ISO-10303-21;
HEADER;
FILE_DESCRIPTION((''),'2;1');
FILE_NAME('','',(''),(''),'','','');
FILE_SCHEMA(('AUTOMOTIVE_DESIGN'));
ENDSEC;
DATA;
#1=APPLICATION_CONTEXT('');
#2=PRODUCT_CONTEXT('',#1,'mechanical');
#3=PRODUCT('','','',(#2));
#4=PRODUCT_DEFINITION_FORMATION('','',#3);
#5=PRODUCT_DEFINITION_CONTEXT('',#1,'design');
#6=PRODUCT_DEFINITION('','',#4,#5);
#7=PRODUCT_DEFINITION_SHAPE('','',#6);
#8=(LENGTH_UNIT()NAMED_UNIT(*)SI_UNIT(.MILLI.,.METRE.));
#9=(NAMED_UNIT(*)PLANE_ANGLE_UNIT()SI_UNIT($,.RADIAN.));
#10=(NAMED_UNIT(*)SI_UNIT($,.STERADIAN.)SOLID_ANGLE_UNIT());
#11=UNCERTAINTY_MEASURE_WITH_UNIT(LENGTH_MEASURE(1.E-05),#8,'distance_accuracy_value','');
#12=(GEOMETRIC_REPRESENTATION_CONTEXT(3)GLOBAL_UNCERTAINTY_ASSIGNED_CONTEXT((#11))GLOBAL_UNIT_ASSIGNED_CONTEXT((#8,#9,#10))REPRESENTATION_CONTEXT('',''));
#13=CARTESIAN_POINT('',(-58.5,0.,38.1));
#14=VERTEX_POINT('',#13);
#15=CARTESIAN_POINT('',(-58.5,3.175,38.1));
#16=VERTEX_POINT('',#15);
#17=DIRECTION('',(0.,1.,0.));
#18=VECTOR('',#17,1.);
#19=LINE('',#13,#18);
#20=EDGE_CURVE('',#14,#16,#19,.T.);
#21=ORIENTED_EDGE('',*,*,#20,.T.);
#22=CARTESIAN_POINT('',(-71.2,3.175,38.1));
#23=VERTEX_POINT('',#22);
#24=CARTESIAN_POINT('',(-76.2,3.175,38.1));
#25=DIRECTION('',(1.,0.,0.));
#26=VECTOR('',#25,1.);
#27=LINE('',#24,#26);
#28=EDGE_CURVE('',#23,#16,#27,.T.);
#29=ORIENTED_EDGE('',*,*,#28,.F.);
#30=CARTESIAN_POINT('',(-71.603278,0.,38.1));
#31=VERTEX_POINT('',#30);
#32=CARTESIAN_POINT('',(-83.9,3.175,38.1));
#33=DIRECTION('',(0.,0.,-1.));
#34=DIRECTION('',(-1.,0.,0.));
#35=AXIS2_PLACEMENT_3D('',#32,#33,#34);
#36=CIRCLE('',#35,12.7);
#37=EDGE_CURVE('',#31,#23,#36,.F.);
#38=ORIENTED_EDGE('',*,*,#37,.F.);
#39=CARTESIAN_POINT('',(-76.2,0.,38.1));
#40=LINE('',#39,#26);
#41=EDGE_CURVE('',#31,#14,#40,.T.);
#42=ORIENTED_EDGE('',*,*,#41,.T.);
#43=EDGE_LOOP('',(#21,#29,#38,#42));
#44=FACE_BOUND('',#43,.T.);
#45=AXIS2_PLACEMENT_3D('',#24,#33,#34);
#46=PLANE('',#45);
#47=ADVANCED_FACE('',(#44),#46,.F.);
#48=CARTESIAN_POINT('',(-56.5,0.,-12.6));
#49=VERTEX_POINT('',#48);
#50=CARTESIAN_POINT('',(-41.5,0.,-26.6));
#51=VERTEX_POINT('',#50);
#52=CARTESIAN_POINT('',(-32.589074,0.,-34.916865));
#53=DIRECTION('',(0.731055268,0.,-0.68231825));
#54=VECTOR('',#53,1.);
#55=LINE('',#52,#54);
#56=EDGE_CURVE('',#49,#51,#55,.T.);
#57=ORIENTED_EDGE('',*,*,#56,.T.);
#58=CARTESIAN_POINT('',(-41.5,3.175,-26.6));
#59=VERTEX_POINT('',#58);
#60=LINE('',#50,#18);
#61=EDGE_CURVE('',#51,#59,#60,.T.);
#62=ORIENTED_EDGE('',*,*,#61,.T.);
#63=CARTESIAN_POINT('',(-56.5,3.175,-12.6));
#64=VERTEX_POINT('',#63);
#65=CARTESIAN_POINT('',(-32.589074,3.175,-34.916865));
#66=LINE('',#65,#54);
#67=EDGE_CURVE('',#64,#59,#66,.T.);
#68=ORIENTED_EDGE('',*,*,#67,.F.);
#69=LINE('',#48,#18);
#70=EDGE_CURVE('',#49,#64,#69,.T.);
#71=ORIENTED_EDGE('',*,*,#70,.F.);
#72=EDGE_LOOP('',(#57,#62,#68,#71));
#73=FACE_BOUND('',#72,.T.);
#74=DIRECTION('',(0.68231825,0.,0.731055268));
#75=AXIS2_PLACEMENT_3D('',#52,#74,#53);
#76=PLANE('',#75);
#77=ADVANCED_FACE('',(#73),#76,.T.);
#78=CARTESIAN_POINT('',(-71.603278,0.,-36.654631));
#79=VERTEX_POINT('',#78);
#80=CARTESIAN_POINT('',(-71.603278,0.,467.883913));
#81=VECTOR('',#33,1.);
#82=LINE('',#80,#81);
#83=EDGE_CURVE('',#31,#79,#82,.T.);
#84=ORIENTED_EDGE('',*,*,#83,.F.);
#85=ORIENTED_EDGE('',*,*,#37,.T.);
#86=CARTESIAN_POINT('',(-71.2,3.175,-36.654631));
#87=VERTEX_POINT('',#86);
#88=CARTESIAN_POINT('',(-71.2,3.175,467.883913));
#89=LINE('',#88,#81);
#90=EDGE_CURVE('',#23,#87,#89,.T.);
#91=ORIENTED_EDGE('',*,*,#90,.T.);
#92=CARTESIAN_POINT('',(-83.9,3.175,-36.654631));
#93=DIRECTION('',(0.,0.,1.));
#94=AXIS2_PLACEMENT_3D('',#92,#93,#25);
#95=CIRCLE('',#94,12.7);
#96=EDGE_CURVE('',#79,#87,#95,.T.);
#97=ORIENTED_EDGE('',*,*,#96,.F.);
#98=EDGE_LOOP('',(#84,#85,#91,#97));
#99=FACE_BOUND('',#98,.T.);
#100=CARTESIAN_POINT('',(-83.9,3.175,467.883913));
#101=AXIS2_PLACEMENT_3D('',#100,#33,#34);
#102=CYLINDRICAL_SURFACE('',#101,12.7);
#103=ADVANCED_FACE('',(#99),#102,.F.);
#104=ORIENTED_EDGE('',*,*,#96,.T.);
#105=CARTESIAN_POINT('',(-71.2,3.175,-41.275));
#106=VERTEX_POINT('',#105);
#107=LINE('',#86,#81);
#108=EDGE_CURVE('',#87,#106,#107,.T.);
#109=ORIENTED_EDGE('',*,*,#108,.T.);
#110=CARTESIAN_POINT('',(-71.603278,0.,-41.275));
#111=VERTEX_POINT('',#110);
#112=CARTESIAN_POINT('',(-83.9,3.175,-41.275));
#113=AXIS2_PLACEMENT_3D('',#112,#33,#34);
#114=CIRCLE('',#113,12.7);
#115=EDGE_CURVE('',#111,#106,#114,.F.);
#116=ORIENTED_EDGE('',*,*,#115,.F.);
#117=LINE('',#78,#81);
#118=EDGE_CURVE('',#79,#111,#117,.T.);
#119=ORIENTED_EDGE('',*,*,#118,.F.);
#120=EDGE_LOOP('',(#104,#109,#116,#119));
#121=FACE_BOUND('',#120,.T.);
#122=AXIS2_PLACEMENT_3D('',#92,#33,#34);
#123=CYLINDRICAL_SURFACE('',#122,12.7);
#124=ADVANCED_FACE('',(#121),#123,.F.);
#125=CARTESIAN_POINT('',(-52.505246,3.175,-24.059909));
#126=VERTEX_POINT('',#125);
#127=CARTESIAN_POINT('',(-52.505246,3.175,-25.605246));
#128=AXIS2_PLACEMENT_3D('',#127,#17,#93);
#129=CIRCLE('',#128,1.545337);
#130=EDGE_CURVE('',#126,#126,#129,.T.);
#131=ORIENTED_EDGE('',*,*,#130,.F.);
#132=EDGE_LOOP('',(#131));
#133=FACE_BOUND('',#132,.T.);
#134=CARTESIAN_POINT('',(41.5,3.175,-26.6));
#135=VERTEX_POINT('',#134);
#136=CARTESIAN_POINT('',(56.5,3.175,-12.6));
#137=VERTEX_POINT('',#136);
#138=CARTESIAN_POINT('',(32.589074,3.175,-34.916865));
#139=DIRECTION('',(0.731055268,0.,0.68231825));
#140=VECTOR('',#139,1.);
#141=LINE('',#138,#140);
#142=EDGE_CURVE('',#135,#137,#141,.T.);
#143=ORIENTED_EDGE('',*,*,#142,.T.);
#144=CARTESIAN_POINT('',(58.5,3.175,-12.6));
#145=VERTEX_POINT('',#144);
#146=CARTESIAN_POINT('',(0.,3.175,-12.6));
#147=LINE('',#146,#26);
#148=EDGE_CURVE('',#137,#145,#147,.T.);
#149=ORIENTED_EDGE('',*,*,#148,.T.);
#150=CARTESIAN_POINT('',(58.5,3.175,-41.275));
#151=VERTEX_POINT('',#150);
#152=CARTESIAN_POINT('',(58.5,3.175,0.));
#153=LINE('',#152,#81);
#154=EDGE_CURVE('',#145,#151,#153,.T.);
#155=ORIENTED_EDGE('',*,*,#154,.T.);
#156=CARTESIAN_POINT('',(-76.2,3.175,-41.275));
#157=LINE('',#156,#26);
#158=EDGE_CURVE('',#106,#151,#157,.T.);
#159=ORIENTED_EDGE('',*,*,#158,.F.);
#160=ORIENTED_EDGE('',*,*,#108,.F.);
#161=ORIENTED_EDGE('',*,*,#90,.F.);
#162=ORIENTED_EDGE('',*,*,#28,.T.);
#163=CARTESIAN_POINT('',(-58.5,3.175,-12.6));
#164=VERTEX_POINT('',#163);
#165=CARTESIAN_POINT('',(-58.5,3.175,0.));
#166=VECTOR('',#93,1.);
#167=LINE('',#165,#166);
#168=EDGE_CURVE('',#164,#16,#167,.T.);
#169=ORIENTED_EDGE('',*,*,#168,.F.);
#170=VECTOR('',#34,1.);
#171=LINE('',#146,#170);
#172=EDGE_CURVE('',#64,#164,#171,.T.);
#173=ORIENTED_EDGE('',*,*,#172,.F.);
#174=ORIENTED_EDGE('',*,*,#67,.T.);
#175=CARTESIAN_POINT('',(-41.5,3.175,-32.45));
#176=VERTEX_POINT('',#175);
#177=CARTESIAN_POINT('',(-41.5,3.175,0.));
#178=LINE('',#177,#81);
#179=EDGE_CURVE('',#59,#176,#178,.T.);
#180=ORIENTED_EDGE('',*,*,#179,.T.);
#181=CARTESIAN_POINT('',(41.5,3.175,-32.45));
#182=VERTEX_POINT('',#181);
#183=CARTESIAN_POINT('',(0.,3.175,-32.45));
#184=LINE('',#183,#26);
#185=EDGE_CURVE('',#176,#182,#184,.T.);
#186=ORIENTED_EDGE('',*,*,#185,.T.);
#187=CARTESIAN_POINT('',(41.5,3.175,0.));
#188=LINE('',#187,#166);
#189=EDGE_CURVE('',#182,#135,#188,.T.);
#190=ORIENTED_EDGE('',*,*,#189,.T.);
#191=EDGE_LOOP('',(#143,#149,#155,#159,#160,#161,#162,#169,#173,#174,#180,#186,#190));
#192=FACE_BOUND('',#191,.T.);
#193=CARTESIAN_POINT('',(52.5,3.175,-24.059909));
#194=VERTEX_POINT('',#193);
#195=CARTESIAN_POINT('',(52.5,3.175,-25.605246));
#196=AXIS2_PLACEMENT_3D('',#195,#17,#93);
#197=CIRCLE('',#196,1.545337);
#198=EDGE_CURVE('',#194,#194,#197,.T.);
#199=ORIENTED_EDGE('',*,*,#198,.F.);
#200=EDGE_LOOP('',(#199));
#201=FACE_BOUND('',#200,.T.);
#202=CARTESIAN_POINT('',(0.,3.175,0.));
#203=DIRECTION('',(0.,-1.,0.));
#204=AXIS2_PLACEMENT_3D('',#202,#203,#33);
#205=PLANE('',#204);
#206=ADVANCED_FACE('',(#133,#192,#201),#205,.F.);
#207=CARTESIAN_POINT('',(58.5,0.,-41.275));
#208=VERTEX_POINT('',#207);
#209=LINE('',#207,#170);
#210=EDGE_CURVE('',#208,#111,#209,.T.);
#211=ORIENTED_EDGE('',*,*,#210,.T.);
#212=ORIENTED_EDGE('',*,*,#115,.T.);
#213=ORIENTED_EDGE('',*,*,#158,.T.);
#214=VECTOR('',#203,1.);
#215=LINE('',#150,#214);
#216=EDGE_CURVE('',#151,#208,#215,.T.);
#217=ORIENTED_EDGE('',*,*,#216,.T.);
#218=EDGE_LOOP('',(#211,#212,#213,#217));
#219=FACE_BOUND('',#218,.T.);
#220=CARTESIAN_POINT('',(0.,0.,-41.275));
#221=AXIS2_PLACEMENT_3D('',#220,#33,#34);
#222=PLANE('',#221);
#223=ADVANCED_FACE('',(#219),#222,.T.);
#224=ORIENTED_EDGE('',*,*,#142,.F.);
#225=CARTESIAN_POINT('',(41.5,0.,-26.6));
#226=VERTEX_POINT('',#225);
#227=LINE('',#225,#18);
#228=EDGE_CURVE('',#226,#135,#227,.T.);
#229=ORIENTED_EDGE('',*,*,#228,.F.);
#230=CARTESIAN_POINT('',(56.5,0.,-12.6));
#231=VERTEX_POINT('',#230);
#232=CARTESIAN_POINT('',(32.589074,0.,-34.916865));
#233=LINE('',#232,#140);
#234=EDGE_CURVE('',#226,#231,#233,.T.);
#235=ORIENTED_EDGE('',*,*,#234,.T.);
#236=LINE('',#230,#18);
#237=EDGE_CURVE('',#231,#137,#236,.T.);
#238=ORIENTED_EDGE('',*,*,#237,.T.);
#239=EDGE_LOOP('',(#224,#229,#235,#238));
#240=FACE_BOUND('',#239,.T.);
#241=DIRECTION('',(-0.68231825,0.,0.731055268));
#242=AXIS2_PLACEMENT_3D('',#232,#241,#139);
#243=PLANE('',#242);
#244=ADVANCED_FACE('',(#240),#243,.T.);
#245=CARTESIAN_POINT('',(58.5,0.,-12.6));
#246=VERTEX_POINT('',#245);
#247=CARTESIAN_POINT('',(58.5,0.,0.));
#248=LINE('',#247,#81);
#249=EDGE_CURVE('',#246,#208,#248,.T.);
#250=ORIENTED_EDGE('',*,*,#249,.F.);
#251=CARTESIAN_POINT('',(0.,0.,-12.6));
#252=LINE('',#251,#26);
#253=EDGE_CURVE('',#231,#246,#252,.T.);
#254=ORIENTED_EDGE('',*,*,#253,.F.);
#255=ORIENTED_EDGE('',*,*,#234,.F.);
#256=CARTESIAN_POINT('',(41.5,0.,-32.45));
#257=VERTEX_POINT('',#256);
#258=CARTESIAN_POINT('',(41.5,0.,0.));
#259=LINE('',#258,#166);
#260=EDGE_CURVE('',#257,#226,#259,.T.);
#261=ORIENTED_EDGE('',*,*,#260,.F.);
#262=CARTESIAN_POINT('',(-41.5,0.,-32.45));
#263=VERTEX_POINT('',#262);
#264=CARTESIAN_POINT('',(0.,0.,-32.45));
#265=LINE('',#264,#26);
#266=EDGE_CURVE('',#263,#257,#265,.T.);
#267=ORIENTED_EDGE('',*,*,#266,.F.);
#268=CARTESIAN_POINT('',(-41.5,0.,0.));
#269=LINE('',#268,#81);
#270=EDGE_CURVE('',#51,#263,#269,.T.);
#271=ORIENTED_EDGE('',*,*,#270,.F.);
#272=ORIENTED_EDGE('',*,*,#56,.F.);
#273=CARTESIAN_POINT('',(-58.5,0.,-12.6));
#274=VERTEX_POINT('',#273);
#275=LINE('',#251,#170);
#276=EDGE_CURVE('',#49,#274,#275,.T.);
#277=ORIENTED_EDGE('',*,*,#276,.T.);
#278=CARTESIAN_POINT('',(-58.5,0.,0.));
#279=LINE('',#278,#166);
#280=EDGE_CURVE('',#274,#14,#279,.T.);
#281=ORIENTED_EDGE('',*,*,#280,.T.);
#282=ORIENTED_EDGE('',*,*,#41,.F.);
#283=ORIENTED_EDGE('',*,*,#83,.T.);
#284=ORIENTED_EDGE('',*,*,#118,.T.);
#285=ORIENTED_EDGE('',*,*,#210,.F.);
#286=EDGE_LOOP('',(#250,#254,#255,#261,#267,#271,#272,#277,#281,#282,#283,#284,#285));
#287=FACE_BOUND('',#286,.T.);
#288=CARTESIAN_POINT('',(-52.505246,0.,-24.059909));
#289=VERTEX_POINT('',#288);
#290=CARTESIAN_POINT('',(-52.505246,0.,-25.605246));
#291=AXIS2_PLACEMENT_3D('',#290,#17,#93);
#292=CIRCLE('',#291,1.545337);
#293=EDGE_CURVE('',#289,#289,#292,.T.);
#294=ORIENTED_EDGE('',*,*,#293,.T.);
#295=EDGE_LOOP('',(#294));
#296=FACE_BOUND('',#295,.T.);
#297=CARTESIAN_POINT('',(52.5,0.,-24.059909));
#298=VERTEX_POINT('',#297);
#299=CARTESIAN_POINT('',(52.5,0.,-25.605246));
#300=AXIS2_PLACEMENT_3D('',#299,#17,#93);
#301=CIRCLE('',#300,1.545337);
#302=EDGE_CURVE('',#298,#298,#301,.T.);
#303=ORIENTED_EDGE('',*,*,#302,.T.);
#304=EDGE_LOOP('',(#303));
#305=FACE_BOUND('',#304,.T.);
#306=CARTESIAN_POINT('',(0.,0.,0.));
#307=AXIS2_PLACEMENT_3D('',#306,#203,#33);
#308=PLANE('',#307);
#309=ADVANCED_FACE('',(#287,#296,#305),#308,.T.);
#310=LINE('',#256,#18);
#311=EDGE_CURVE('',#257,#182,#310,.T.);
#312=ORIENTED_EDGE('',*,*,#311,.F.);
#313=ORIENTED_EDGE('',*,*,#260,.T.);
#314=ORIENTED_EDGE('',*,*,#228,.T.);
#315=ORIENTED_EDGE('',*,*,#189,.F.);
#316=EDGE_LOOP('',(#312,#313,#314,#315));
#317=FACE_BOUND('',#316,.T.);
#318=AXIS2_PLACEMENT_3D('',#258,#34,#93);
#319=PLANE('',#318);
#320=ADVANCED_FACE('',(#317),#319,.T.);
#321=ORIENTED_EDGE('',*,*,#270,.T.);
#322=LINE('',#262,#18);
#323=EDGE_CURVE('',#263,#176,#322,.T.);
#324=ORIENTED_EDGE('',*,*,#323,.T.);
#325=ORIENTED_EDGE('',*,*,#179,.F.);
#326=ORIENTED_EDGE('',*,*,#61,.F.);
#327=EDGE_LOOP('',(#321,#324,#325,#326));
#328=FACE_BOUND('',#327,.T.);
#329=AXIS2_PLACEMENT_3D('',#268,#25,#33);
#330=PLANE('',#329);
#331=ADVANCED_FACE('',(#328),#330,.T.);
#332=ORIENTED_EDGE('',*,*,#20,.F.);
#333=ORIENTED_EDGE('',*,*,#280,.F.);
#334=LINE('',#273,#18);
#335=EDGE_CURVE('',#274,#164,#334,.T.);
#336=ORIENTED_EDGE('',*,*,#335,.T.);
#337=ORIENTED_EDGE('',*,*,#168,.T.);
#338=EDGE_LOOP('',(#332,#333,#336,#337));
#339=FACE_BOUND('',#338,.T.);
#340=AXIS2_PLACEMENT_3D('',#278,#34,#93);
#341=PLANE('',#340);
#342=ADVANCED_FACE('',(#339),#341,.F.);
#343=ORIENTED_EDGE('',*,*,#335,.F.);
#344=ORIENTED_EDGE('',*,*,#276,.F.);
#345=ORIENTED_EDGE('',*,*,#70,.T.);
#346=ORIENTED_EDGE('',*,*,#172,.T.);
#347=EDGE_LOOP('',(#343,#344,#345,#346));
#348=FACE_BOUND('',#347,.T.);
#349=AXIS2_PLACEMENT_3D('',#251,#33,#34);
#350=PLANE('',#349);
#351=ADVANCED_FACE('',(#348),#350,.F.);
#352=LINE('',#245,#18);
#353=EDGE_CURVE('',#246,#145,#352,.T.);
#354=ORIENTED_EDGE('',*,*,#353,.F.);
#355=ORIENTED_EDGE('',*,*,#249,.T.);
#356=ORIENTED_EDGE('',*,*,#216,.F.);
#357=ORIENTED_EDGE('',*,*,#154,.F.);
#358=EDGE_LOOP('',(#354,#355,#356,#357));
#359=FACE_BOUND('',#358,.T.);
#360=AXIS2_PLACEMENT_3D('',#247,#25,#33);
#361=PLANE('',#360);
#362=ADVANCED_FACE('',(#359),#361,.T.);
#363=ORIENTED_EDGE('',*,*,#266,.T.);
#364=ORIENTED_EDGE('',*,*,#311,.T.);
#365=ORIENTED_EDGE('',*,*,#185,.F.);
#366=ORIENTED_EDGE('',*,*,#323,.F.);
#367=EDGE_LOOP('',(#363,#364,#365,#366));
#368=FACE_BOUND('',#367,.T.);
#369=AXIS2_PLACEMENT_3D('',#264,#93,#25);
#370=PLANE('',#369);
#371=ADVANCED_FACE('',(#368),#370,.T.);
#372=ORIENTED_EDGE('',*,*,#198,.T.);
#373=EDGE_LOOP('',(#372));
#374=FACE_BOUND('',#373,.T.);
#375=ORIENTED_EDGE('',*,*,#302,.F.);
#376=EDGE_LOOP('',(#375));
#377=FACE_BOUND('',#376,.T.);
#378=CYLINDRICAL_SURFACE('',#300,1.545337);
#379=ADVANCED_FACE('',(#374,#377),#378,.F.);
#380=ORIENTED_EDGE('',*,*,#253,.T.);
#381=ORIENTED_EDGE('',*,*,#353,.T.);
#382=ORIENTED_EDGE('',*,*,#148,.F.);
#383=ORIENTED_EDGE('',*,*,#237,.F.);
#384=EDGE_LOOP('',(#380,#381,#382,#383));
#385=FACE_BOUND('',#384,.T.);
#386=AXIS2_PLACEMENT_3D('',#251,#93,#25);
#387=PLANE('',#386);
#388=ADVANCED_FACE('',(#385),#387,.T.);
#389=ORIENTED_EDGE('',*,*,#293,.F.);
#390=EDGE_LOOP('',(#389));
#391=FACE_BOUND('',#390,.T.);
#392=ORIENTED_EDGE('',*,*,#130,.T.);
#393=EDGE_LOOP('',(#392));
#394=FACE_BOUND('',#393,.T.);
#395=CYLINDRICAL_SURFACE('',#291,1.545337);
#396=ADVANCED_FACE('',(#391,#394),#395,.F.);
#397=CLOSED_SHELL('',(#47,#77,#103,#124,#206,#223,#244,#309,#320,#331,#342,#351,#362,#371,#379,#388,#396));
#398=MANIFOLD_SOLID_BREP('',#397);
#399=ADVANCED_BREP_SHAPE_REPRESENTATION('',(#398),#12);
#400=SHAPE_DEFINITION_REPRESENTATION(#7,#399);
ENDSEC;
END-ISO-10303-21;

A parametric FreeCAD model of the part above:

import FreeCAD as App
import Part
import Sketcher
Q = App.Units.Quantity


def add_polygon(sketch, points):
    """Adds a closed chain of lines whose ends are joined by coincident constraints."""
    first, n = sketch.GeometryCount, len(points)
    for a, b in zip(points, points[1:] + points[:1]):
        sketch.addGeometry(Part.LineSegment(App.Vector(*a, 0), App.Vector(*b, 0)), False)
    for i in range(n):
        sketch.addConstraint(Sketcher.Constraint("Coincident", first + i, 2, first + (i + 1) % n, 1))

doc = App.newDocument("Part")
params = doc.addObject("Spreadsheet::Sheet", "Params")
for row, (alias, value) in enumerate([
    ("sketch1_width", "152.4 mm"),
    ("sketch1_height", "76.2 mm"),
    ("pad1_length", "3.175 mm"),
    ("sketch2_width", "2 mm"),
    ("sketch2_width2", "83 mm"),
    ("sketch2_width3", "134.7 mm"),
    ("sketch2_width4", "17.7 mm"),
    ("sketch2_height", "50.7 mm"),
    ("sketch3_width", "134.7 mm"),
    ("pad2_length", "3.175 mm"),
    ("sketch4_diameter", "25.4 mm"),
], start=1):
    params.set(f"A{row}", alias)
    params.set(f"B{row}", "=" + value)
    params.setAlias(f"B{row}", alias)

body = doc.addObject("PartDesign::Body", "Body")

sketch1 = doc.addObject("Sketcher::SketchObject", "Sketch")
body.addObject(sketch1)
sketch1.AttachmentSupport = (doc.XZ_Plane, [""])
sketch1.MapMode = "FlatFace"
add_polygon(sketch1, [(-76, -38), (-76, 38), (76, 38), (76, -38)])
sketch1.addConstraint(Sketcher.Constraint("Vertical", 0))
sketch1.addConstraint(Sketcher.Constraint("Horizontal", 1))
sketch1.addConstraint(Sketcher.Constraint("Vertical", 2))
sketch1.addConstraint(Sketcher.Constraint("Horizontal", 3))
sketch1.addConstraint(Sketcher.Constraint("Symmetric", 0, 2, 2, 2, -1, 1))
sketch1.addConstraint(Sketcher.Constraint("DistanceX", 1, 1, 1, 2, Q("152.4 mm")))
sketch1.addConstraint(Sketcher.Constraint("DistanceY", 0, 1, 0, 2, Q("76.2 mm")))
sketch1.setExpression("Constraints[9]", "Params.sketch1_width")
sketch1.setExpression("Constraints[10]", "Params.sketch1_height")
pad1 = doc.addObject("PartDesign::Pad", "Pad")
body.addObject(pad1)
pad1.Profile = sketch1
pad1.setExpression("Length", "Params.pad1_length")
pad1.Reversed = True

sketch2 = doc.addObject("Sketcher::SketchObject", "Sketch001")
body.addObject(sketch2)
sketch2.AttachmentSupport = (doc.XZ_Plane, [""])
sketch2.MapMode = "FlatFace"
sketch2.AttachmentOffset = App.Placement(App.Vector(0, 0, -3.175), App.Rotation())
add_polygon(sketch2, [(-58.5, -12.6), (-58.5, 38.1), (76.2, 38.1), (76.2, -38.1), (58.5, -38.1), (58.5, -12.6), (56.5, -12.6), (41.5, -26.6), (41.5, -32.5), (-41.5, -32.5), (-41.5, -26.6), (-56.5, -12.6)])
sketch2.addGeometry(Part.Circle(App.Vector(-52.5, -25.6, 0), App.Vector(0, 0, 1), 1.5), False)
sketch2.addGeometry(Part.Circle(App.Vector(52.5, -25.6, 0), App.Vector(0, 0, 1), 1.5), False)
sketch2.addConstraint(Sketcher.Constraint("Vertical", 0))
sketch2.addConstraint(Sketcher.Constraint("Horizontal", 1))
sketch2.addConstraint(Sketcher.Constraint("Vertical", 2))
sketch2.addConstraint(Sketcher.Constraint("Horizontal", 3))
sketch2.addConstraint(Sketcher.Constraint("Vertical", 4))
sketch2.addConstraint(Sketcher.Constraint("Horizontal", 5))
sketch2.addConstraint(Sketcher.Constraint("Vertical", 7))
sketch2.addConstraint(Sketcher.Constraint("Horizontal", 8))
sketch2.addConstraint(Sketcher.Constraint("Vertical", 9))
sketch2.addConstraint(Sketcher.Constraint("Horizontal", 11))
sketch2.addConstraint(Sketcher.Constraint("Equal", 12, 13))
sketch2.addConstraint(Sketcher.Constraint("Symmetric", 0, 2, 3, 2, -1, 1))
sketch2.addConstraint(Sketcher.Constraint("Symmetric", 6, 2, 9, 2, -2))
sketch2.addConstraint(Sketcher.Constraint("Symmetric", 5, 2, 10, 2, -2))
sketch2.addConstraint(Sketcher.Constraint("Horizontal", 12, 3, 13, 3))
sketch2.addConstraint(Sketcher.Constraint("DistanceX", 5, 2, 5, 1, Q("2 mm")))
sketch2.addConstraint(Sketcher.Constraint("DistanceX", 8, 2, 8, 1, Q("83 mm")))
sketch2.addConstraint(Sketcher.Constraint("DistanceX", 1, 1, 1, 2, Q("134.7 mm")))
sketch2.addConstraint(Sketcher.Constraint("DistanceX", 3, 2, 3, 1, Q("17.7 mm")))
sketch2.addConstraint(Sketcher.Constraint("DistanceY", 0, 1, 0, 2, Q("50.7 mm")))
sketch2.addConstraint(Sketcher.Constraint("DistanceY", 2, 2, 2, 1, Q("76.2 mm")))
sketch2.addConstraint(Sketcher.Constraint("DistanceX", 0, 2, 13, 3, Q("111 mm")))
sketch2.addConstraint(Sketcher.Constraint("DistanceY", 6, 2, 5, 2, Q("14 mm")))
sketch2.addConstraint(Sketcher.Constraint("DistanceY", 7, 2, 7, 1, Q("5.85 mm")))
sketch2.addConstraint(Sketcher.Constraint("Diameter", 12, Q("3.090673 mm")))
sketch2.addConstraint(Sketcher.Constraint("DistanceX", 12, 3, -1, 1, Q("52.505246 mm")))
sketch2.addConstraint(Sketcher.Constraint("DistanceY", 12, 3, -1, 1, Q("25.605246 mm")))
sketch2.setExpression("Constraints[27]", "Params.sketch2_width")
sketch2.setExpression("Constraints[28]", "Params.sketch2_width2")
sketch2.setExpression("Constraints[29]", "Params.sketch2_width3")
sketch2.setExpression("Constraints[30]", "Params.sketch2_width4")
sketch2.setExpression("Constraints[31]", "Params.sketch2_height")
pocket1 = doc.addObject("PartDesign::Pocket", "Pocket")
body.addObject(pocket1)
pocket1.Profile = sketch2
pocket1.Type = "ThroughAll"
pocket1.Reversed = True

sketch3 = doc.addObject("Sketcher::SketchObject", "Sketch002")
body.addObject(sketch3)
sketch3.AttachmentSupport = (doc.XY_Plane, [""])
sketch3.MapMode = "FlatFace"
sketch3.AttachmentOffset = App.Placement(App.Vector(0, 0, -38.1), App.Rotation())
add_polygon(sketch3, [(58.5, 3.2), (58.5, 0), (-76.2, 0), (-76.2, 3.2)])
sketch3.addConstraint(Sketcher.Constraint("Vertical", 0))
sketch3.addConstraint(Sketcher.Constraint("Horizontal", 1))
sketch3.addConstraint(Sketcher.Constraint("Vertical", 2))
sketch3.addConstraint(Sketcher.Constraint("Horizontal", 3))
sketch3.addConstraint(Sketcher.Constraint("PointOnObject", 0, 2, -1))
sketch3.addConstraint(Sketcher.Constraint("DistanceX", 1, 2, 1, 1, Q("134.7 mm")))
sketch3.addConstraint(Sketcher.Constraint("DistanceX", -1, 1, 0, 2, Q("58.5 mm")))
sketch3.addConstraint(Sketcher.Constraint("DistanceY", 0, 2, 0, 1, Q("3.175 mm")))
sketch3.setExpression("Constraints[9]", "Params.sketch3_width")
pad2 = doc.addObject("PartDesign::Pad", "Pad001")
body.addObject(pad2)
pad2.Profile = sketch3
pad2.setExpression("Length", "Params.pad2_length")
pad2.Reversed = True

sketch4 = doc.addObject("Sketcher::SketchObject", "Sketch003")
body.addObject(sketch4)
sketch4.AttachmentSupport = (doc.XY_Plane, [""])
sketch4.MapMode = "FlatFace"
sketch4.AttachmentOffset = App.Placement(App.Vector(0, 0, 467.883913), App.Rotation())
sketch4.addGeometry(Part.Circle(App.Vector(-84, 3, 0), App.Vector(0, 0, 1), 13), False)
sketch4.addConstraint(Sketcher.Constraint("Diameter", 0, Q("25.4 mm")))
sketch4.addConstraint(Sketcher.Constraint("DistanceX", 0, 3, -1, 1, Q("83.9 mm")))
sketch4.addConstraint(Sketcher.Constraint("DistanceY", -1, 1, 0, 3, Q("3.175 mm")))
sketch4.setExpression("Constraints[0]", "Params.sketch4_diameter")

sketch5 = doc.addObject("Sketcher::SketchObject", "Sketch004")
body.addObject(sketch5)
sketch5.AttachmentSupport = (doc.XZ_Plane, [""])
sketch5.MapMode = "FlatFace"
sketch5.AttachmentOffset = App.Placement(App.Vector(0, 0, -3.175), App.Rotation())
sketch5.addGeometry(Part.LineSegment(App.Vector(-84, 468, 0), App.Vector(-84, -210, 0)), False)
sketch5.addConstraint(Sketcher.Constraint("Vertical", 0))
sketch5.addConstraint(Sketcher.Constraint("DistanceX", 0, 1, -1, 1, Q("83.9 mm")))
sketch5.addConstraint(Sketcher.Constraint("DistanceY", 0, 2, 0, 1, Q("678.067196 mm")))
sketch5.addConstraint(Sketcher.Constraint("DistanceY", -1, 1, 0, 1, Q("467.883913 mm")))
doc.recompute()

subtractivepipe = doc.addObject("PartDesign::SubtractivePipe", "SubtractivePipe")
body.addObject(subtractivepipe)
subtractivepipe.Profile = sketch4
subtractivepipe.Spine = (sketch5, ["Edge1"])

doc.recompute()
